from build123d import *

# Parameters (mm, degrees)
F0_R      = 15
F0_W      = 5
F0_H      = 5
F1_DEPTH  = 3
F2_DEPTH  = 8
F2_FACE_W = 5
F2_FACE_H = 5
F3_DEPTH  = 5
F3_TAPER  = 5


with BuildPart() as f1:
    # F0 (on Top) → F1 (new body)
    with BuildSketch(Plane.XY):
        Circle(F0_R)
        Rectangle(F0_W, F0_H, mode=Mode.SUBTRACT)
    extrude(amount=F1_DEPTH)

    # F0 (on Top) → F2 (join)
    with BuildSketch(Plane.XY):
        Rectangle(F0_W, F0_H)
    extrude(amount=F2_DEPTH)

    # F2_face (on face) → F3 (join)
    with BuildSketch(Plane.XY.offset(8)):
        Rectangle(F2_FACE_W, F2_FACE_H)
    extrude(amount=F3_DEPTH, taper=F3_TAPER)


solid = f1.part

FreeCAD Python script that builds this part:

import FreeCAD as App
import Part
import Sketcher

V = App.Vector


def add_polygon(sketch, points):
    """Adds a closed chain of lines whose ends are joined by coincident constraints."""
    first, n = sketch.GeometryCount, len(points)
    for a, b in zip(points, points[1:] + points[:1]):
        sketch.addGeometry(Part.LineSegment(App.Vector(*a, 0), App.Vector(*b, 0)), False)
    for i in range(n):
        sketch.addConstraint(Sketcher.Constraint("Coincident", first + i, 2, first + (i + 1) % n, 1))

doc = App.newDocument("Part")
body = doc.addObject("PartDesign::Body", "Body")

sketch1 = body.newObject("Sketcher::SketchObject", "Sketch")
sketch1.AttachmentSupport = (doc.getObject("XY_Plane"), [""])
sketch1.MapMode = "FlatFace"
sketch1.addGeometry(Part.Circle(V(0, 0, 0), V(0, 0, 1), 15), False)
add_polygon(sketch1, [(2, -2), (-2, -2), (-2, 2), (2, 2)])
sketch1.addConstraint([
    Sketcher.Constraint("Horizontal", 1),
    Sketcher.Constraint("Vertical", 2),
    Sketcher.Constraint("Horizontal", 3),
    Sketcher.Constraint("Vertical", 4),
    Sketcher.Constraint("Coincident", 0, 3, -1, 1),
    Sketcher.Constraint("Symmetric", 1, 2, 3, 2, -1, 1),
    Sketcher.Constraint("Equal", 3, 2),
    Sketcher.Constraint("Diameter", 0, 30.0),
    Sketcher.Constraint("DistanceX", 1, 2, 1, 1, 5.0),
])
pad1 = body.newObject("PartDesign::Pad", "Pad")
pad1.Profile = sketch1
pad1.Length = 3

sketch2 = body.newObject("Sketcher::SketchObject", "Sketch001")
sketch2.AttachmentSupport = (doc.getObject("XY_Plane"), [""])
sketch2.MapMode = "FlatFace"
add_polygon(sketch2, [(-2, 2), (-2, -2), (2, -2), (2, 2)])
sketch2.addConstraint([
    Sketcher.Constraint("Vertical", 0),
    Sketcher.Constraint("Horizontal", 1),
    Sketcher.Constraint("Vertical", 2),
    Sketcher.Constraint("Horizontal", 3),
    Sketcher.Constraint("Symmetric", 0, 2, 2, 2, -1, 1),
    Sketcher.Constraint("Equal", 3, 0),
    Sketcher.Constraint("DistanceX", 1, 1, 1, 2, 5.0),
])
pad2 = body.newObject("PartDesign::Pad", "Pad001")
pad2.Profile = sketch2
pad2.Length = 8

sketch3 = body.newObject("Sketcher::SketchObject", "Sketch002")
sketch3.AttachmentSupport = (doc.getObject("XY_Plane"), [""])
sketch3.MapMode = "FlatFace"
sketch3.AttachmentOffset = App.Placement(V(0, 0, 8), App.Rotation())
add_polygon(sketch3, [(-2, 2), (-2, -2), (2, -2), (2, 2)])
sketch3.addConstraint([
    Sketcher.Constraint("Vertical", 0),
    Sketcher.Constraint("Horizontal", 1),
    Sketcher.Constraint("Vertical", 2),
    Sketcher.Constraint("Horizontal", 3),
    Sketcher.Constraint("Symmetric", 0, 2, 2, 2, -1, 1),
    Sketcher.Constraint("Equal", 3, 0),
    Sketcher.Constraint("DistanceX", 1, 1, 1, 2, 5.0),
])
pad3 = body.newObject("PartDesign::Pad", "Pad002")
pad3.Profile = sketch3
pad3.Length = 5
pad3.TaperAngle = -5

doc.recompute()
